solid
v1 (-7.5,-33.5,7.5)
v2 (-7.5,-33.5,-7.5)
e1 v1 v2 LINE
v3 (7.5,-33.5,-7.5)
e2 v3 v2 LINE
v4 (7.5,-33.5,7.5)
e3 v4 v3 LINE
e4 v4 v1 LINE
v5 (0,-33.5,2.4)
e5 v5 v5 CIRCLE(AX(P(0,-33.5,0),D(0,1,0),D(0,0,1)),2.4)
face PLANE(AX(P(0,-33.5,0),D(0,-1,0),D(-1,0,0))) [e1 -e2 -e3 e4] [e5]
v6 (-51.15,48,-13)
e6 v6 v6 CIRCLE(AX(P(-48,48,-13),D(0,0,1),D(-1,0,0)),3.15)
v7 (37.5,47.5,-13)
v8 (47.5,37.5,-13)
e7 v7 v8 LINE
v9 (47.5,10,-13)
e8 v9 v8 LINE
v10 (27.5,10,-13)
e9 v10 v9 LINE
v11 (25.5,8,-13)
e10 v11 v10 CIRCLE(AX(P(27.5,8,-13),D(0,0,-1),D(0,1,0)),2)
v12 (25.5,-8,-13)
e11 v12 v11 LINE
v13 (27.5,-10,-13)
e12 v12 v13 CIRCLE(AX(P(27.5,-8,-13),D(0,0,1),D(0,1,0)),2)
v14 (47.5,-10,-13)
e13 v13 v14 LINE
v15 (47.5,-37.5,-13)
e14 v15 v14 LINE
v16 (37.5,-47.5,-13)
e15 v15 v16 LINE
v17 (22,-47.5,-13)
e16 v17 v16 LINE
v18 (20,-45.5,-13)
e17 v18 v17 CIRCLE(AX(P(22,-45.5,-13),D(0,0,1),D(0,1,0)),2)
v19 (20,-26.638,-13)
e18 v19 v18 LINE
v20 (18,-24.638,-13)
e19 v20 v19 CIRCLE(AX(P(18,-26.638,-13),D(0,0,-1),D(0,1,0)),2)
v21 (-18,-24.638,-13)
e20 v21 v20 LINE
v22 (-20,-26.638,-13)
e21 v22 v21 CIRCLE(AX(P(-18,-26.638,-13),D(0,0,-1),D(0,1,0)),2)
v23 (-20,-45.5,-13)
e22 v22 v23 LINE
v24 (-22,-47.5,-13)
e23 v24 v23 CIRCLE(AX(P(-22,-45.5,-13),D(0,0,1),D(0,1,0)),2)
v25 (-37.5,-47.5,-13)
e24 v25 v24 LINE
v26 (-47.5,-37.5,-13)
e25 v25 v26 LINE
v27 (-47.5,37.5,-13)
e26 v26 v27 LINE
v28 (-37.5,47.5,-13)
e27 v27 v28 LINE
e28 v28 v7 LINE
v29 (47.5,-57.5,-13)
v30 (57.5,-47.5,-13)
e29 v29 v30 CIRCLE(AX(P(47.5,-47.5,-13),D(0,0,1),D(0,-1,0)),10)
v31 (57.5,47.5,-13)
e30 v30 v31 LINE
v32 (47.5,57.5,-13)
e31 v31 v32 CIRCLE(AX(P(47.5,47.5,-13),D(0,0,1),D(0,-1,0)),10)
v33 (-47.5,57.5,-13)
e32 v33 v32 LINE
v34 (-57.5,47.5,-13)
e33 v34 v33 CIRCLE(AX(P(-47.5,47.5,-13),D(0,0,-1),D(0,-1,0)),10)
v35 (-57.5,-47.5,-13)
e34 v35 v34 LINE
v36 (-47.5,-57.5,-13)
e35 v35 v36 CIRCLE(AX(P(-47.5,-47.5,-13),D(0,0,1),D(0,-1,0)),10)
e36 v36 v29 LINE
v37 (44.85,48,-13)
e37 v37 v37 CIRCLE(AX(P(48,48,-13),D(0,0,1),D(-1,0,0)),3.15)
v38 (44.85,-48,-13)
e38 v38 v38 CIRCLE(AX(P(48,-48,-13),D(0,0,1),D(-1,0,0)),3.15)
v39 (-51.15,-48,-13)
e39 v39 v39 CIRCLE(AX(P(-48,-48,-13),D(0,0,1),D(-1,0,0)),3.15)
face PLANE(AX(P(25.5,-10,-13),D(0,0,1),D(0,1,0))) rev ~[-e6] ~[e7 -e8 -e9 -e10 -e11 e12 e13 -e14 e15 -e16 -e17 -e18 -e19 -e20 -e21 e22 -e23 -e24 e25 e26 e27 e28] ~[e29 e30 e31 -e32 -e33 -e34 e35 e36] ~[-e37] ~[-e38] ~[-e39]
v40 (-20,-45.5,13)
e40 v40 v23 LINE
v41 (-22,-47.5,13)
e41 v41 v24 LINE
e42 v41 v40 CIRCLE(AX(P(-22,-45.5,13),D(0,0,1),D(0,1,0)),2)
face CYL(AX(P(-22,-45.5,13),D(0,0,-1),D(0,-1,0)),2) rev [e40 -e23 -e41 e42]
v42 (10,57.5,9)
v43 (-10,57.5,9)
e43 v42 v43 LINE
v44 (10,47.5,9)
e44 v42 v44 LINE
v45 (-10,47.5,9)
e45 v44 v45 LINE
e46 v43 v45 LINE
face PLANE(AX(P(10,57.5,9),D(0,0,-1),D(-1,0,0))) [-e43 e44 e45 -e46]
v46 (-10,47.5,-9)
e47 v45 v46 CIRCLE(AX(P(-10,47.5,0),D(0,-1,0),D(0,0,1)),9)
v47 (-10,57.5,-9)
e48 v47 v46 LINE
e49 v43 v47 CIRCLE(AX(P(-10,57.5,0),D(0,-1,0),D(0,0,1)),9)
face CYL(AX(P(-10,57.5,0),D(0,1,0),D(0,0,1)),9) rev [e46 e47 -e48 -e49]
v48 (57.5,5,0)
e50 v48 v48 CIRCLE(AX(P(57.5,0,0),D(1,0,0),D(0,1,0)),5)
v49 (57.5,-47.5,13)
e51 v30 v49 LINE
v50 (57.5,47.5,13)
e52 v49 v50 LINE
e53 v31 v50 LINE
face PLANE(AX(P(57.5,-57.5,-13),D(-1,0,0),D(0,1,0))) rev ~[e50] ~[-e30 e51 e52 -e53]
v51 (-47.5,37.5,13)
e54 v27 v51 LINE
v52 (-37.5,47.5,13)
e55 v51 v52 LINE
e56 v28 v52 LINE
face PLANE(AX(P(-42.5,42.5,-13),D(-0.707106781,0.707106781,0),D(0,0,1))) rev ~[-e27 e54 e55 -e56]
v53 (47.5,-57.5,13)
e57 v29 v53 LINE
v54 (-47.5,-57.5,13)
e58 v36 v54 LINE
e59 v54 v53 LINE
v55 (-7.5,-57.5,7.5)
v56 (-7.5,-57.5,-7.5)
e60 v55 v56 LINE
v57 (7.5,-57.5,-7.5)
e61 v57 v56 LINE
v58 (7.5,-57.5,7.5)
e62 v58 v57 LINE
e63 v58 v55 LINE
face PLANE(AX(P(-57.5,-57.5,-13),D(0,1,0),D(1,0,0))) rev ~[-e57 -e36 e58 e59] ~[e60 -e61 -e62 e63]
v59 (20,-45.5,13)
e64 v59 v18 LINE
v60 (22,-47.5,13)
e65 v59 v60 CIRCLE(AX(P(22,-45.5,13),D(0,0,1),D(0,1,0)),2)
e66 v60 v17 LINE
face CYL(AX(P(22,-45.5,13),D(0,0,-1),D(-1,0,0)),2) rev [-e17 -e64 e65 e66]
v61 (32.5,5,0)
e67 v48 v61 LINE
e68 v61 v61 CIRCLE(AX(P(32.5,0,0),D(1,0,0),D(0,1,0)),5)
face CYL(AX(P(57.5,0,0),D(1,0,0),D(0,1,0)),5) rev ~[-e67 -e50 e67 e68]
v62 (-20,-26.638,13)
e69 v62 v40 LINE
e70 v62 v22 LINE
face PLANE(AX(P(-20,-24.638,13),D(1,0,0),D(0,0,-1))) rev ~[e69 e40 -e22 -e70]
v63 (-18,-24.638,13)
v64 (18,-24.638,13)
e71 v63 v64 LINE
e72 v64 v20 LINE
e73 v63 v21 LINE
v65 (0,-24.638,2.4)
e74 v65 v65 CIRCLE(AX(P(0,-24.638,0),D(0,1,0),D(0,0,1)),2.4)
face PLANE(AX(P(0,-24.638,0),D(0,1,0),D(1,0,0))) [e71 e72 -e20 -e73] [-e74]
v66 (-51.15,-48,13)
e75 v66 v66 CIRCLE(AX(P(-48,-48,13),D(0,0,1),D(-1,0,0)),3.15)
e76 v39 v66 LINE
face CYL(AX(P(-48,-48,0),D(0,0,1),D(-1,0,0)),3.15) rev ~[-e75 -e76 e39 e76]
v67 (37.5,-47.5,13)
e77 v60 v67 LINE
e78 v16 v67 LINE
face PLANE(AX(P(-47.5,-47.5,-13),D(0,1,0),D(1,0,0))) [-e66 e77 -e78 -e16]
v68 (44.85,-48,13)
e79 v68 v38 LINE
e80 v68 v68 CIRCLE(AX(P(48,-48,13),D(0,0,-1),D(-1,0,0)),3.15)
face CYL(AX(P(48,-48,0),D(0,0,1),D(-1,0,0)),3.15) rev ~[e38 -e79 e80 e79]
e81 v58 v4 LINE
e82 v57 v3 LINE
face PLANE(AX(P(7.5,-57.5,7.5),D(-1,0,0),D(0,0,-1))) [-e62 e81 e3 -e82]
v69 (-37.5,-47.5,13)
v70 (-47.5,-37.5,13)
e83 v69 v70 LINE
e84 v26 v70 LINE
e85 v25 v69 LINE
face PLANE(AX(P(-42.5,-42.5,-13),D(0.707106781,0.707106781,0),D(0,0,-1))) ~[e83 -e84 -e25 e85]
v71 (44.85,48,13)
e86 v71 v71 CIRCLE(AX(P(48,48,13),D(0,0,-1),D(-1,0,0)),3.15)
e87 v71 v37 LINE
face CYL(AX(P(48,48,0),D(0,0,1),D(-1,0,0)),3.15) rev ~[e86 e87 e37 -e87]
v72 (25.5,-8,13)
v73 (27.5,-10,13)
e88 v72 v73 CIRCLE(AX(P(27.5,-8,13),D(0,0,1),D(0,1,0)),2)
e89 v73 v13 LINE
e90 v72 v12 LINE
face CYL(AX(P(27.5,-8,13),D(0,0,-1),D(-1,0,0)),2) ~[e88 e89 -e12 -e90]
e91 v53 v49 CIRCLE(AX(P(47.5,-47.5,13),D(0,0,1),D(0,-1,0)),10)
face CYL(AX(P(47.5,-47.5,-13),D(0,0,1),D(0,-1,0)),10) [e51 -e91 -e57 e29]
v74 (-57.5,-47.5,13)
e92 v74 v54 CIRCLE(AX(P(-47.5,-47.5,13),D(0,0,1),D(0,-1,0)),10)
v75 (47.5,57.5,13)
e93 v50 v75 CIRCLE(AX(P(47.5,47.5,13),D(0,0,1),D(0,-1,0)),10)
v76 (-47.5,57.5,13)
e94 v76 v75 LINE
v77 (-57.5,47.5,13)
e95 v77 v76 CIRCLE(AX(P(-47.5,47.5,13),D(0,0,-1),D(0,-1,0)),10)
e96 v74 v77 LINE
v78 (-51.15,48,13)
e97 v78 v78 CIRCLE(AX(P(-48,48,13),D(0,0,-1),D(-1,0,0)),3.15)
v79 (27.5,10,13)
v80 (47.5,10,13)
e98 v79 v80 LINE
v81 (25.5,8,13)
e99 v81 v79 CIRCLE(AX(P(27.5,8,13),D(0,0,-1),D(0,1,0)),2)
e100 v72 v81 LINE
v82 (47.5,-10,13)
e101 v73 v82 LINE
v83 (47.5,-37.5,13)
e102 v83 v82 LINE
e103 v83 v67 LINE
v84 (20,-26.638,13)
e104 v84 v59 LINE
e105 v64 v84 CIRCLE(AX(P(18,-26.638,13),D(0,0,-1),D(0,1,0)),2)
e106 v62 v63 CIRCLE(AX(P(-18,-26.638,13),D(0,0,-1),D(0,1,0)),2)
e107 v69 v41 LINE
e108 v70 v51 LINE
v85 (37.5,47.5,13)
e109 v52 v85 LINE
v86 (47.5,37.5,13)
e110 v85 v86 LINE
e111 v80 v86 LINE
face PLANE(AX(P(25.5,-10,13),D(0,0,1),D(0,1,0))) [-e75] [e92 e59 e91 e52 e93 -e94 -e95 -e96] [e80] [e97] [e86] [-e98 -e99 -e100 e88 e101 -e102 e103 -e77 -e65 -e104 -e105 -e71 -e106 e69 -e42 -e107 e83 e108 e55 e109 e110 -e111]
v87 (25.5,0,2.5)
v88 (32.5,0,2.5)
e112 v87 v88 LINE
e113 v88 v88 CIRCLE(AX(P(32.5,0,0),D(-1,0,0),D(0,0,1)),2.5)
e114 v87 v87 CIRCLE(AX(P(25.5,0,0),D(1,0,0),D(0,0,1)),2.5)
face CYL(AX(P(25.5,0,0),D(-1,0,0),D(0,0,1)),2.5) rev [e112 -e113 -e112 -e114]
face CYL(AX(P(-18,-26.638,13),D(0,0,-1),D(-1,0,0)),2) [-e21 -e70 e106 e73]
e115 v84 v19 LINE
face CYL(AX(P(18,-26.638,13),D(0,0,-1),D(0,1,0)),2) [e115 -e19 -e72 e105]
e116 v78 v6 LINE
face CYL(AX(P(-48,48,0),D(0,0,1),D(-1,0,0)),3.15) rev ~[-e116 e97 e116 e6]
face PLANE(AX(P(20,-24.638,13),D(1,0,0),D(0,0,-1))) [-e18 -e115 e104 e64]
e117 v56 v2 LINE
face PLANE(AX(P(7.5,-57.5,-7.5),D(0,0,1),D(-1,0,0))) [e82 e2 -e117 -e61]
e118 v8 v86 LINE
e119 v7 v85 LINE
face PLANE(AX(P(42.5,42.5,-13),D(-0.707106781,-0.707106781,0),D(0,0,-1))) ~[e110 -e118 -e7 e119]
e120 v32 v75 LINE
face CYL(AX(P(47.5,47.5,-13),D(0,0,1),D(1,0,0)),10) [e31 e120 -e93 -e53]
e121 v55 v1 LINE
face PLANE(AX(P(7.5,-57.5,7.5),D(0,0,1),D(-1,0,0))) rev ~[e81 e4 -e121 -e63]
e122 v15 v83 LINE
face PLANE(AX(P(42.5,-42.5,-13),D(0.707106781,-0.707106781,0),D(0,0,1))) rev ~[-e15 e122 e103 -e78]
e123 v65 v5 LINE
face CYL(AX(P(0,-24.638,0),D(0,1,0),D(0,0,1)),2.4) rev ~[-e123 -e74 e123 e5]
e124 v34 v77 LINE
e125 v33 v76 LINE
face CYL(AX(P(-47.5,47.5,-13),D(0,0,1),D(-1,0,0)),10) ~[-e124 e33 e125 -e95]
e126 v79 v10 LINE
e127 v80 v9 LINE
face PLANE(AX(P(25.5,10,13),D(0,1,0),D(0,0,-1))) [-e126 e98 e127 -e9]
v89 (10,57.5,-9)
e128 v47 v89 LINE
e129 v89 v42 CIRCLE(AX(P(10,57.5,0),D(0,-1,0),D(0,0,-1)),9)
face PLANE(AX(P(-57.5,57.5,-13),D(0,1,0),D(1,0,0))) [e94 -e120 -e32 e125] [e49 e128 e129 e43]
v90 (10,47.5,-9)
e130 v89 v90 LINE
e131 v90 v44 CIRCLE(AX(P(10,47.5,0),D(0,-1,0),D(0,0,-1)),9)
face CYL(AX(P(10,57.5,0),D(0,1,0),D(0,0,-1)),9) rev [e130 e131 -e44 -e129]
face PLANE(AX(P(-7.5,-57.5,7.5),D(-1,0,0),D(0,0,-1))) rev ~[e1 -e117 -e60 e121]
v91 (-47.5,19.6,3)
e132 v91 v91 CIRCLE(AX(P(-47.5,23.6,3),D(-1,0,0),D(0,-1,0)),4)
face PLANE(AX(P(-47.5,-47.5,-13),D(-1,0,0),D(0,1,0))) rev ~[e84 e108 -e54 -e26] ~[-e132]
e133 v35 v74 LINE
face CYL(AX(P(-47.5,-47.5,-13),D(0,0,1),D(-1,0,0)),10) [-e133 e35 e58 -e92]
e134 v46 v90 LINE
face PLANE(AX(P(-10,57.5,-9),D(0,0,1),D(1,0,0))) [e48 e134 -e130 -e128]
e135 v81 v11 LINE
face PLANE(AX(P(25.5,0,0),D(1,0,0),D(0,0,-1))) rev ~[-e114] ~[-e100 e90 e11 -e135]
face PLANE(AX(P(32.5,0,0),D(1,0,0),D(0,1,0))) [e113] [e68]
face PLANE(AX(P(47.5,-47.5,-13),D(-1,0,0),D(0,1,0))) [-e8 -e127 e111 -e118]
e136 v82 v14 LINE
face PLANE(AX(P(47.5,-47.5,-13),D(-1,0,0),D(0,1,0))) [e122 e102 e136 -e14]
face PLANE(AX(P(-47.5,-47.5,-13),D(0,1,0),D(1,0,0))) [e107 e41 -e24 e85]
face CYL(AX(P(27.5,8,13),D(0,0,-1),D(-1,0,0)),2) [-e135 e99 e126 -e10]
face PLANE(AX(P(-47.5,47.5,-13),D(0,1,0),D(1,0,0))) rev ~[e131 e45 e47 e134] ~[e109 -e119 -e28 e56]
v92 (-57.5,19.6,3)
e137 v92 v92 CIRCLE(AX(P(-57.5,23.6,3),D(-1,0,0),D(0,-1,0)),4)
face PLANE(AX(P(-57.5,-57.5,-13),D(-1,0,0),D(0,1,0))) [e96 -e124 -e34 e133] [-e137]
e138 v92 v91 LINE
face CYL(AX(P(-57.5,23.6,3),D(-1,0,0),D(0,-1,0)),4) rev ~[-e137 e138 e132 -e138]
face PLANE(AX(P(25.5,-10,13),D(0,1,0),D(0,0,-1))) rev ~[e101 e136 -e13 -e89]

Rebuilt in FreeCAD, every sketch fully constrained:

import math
import FreeCAD as App
import Part
import Sketcher

V = App.Vector


def edges_at(feature, points):
    """Names of the edges that pass closest to the given points."""
    edges = feature.Shape.Edges
    near = lambda p: min(range(len(edges)), key=lambda i: edges[i].distToShape(Part.Vertex(*p))[0])
    return sorted({f"Edge{near(p) + 1}" for p in points})


def add_polygon(sketch, points):
    """Adds a closed chain of lines whose ends are joined by coincident constraints."""
    first, n = sketch.GeometryCount, len(points)
    for a, b in zip(points, points[1:] + points[:1]):
        sketch.addGeometry(Part.LineSegment(App.Vector(*a, 0), App.Vector(*b, 0)), False)
    for i in range(n):
        sketch.addConstraint(Sketcher.Constraint("Coincident", first + i, 2, first + (i + 1) % n, 1))

doc = App.newDocument("Part")
body = doc.addObject("PartDesign::Body", "Body")

# Sketch on XY plane
sketch1 = body.newObject("Sketcher::SketchObject", "Sketch")
sketch1.AttachmentSupport = (doc.getObject("XY_Plane"), [""])
sketch1.MapMode = "FlatFace"
sketch1.AttachmentOffset = App.Placement(V(0, 0, -13), App.Rotation())
add_polygon(sketch1, [(-57.5, 57.5), (-57.5, -57.5), (57.5, -57.5), (57.5, 57.5)])  # lines 0-3
add_polygon(sketch1, [(47.5, -47.5), (-47.5, -47.5), (-47.5, 47.5), (47.5, 47.5)])  # lines 4-7
sketch1.addConstraint([
    Sketcher.Constraint("Vertical", 0),
    Sketcher.Constraint("Horizontal", 1),
    Sketcher.Constraint("Vertical", 2),
    Sketcher.Constraint("Horizontal", 3),
    Sketcher.Constraint("Horizontal", 4),
    Sketcher.Constraint("Vertical", 5),
    Sketcher.Constraint("Horizontal", 6),
    Sketcher.Constraint("Vertical", 7),
    Sketcher.Constraint("Symmetric", 0, 2, 2, 2, -1, 1),
    Sketcher.Constraint("Symmetric", 4, 2, 6, 2, -1, 1),
    Sketcher.Constraint("Equal", 3, 0),
    Sketcher.Constraint("Equal", 6, 5),
    Sketcher.Constraint("DistanceX", 1, 1, 1, 2, 115.0),
    Sketcher.Constraint("DistanceX", 4, 2, 4, 1, 95.0),
])
pad1 = body.newObject("PartDesign::Pad", "Pad")
pad1.Profile = sketch1
pad1.Length = 26

# Sketch on XZ plane
sketch2 = body.newObject("Sketcher::SketchObject", "Sketch001")
sketch2.AttachmentSupport = (doc.getObject("XZ_Plane"), [""])
sketch2.MapMode = "FlatFace"
sketch2.AttachmentOffset = App.Placement(V(0, 0, 24.638), App.Rotation())
add_polygon(sketch2, [(-20, -13), (-20, 13), (20, 13), (20, -13)])  # lines 0-3
sketch2.addConstraint([
    Sketcher.Constraint("Vertical", 0),
    Sketcher.Constraint("Horizontal", 1),
    Sketcher.Constraint("Vertical", 2),
    Sketcher.Constraint("Horizontal", 3),
    Sketcher.Constraint("Symmetric", 0, 2, 2, 2, -1, 1),
    Sketcher.Constraint("DistanceX", 1, 1, 1, 2, 40.0),
    Sketcher.Constraint("DistanceY", 0, 1, 0, 2, 26.0),
])
pad2 = body.newObject("PartDesign::Pad", "Pad001")
pad2.Profile = sketch2
pad2.Length = 27

# Sketch on XZ plane
sketch3 = body.newObject("Sketcher::SketchObject", "Sketch002")
sketch3.AttachmentSupport = (doc.getObject("XZ_Plane"), [""])
sketch3.MapMode = "FlatFace"
sketch3.AttachmentOffset = App.Placement(V(0, 0, 57.5), App.Rotation())
add_polygon(sketch3, [(7.5, -7.5), (7.5, 7.5), (-7.5, 7.5), (-7.5, -7.5)])  # lines 0-3
sketch3.addConstraint([
    Sketcher.Constraint("Vertical", 0),
    Sketcher.Constraint("Horizontal", 1),
    Sketcher.Constraint("Vertical", 2),
    Sketcher.Constraint("Horizontal", 3),
    Sketcher.Constraint("Symmetric", 0, 2, 2, 2, -1, 1),
    Sketcher.Constraint("Equal", 3, 0),
    Sketcher.Constraint("DistanceX", 1, 2, 1, 1, 15.0),
])
pocket1 = body.newObject("PartDesign::Pocket", "Pocket")
pocket1.Profile = sketch3
pocket1.Length = 24
doc.recompute()

fillet = body.newObject("PartDesign::Fillet", "Fillet")
fillet.Base = (pocket1, edges_at(pocket1, [
    (-57.5, 57.5, 0),
    (57.5, 57.5, 0),
    (57.5, -57.5, 0),
    (-57.5, -57.5, 0),
]))
fillet.Radius = 10
doc.recompute()

chamfer = body.newObject("PartDesign::Chamfer", "Chamfer")
chamfer.Base = (fillet, edges_at(fillet, [
    (-47.5, 47.5, 0),
    (-47.5, -47.5, 0),
    (47.5, -47.5, 0),
    (47.5, 47.5, 0),
]))
chamfer.Size = 10

# Sketch on XY plane
sketch4 = body.newObject("Sketcher::SketchObject", "Sketch003")
sketch4.AttachmentSupport = (doc.getObject("XY_Plane"), [""])
sketch4.MapMode = "FlatFace"
sketch4.addGeometry([
    Part.Circle(V(-48, 48, 0), V(0, 0, 1), 3.15),
    Part.Circle(V(48, 48, 0), V(0, 0, 1), 3.15),
    Part.Circle(V(48, -48, 0), V(0, 0, 1), 3.15),
    Part.Circle(V(-48, -48, 0), V(0, 0, 1), 3.15),
], False)
sketch4.addConstraint([
    Sketcher.Constraint("Equal", 0, 1),
    Sketcher.Constraint("Equal", 1, 2),
    Sketcher.Constraint("Equal", 2, 3),
    Sketcher.Constraint("Symmetric", 0, 3, 2, 3, -1, 1),
    Sketcher.Constraint("Symmetric", 1, 3, 3, 3, -1, 1),
    Sketcher.Constraint("Symmetric", 0, 3, 1, 3, -2),
    Sketcher.Constraint("Diameter", 0, 6.3),
    Sketcher.Constraint("DistanceX", 0, 3, -1, 1, 48.0),
    Sketcher.Constraint("DistanceY", -1, 1, 0, 3, 48.0),
])
pocket2 = body.newObject("PartDesign::Pocket", "Pocket001")
pocket2.Profile = sketch4
pocket2.Length = 115
pocket2.Midplane = True

# Sketch on YZ plane
sketch5 = body.newObject("Sketcher::SketchObject", "Sketch004")
sketch5.AttachmentSupport = (doc.getObject("YZ_Plane"), [""])
sketch5.MapMode = "FlatFace"
sketch5.AttachmentOffset = App.Placement(V(0, 0, -57.5), App.Rotation())
sketch5.addGeometry(Part.Circle(V(23.6, 3, 0), V(0, 0, 1), 4), False)
sketch5.addConstraint([
    Sketcher.Constraint("Diameter", 0, 8.0),
    Sketcher.Constraint("DistanceY", -1, 1, 0, 3, 3.0),
    Sketcher.Constraint("DistanceX", -1, 1, 0, 3, 23.6),
])
pocket3 = body.newObject("PartDesign::Pocket", "Pocket002")
pocket3.Profile = sketch5
pocket3.Length = 30
pocket3.Reversed = True
doc.recompute()

fillet2 = body.newObject("PartDesign::Fillet", "Fillet001")
fillet2.Base = (pocket3, edges_at(pocket3, [
    (20, -47.5, 0),
    (-20, -47.5, 0),
    (-20, -24.638, 0),
    (20, -24.638, 0),
]))
fillet2.Radius = 2

# Sketch on YZ plane
sketch6 = body.newObject("Sketcher::SketchObject", "Sketch005")
sketch6.AttachmentSupport = (doc.getObject("YZ_Plane"), [""])
sketch6.MapMode = "FlatFace"
sketch6.AttachmentOffset = App.Placement(V(0, 0, 25.5), App.Rotation())
add_polygon(sketch6, [(10, 13), (-10, 13), (-10, -13), (10, -13)])  # lines 0-3
sketch6.addConstraint([
    Sketcher.Constraint("Horizontal", 0),
    Sketcher.Constraint("Vertical", 1),
    Sketcher.Constraint("Horizontal", 2),
    Sketcher.Constraint("Vertical", 3),
    Sketcher.Constraint("Symmetric", 0, 2, 2, 2, -1, 1),
    Sketcher.Constraint("DistanceX", 0, 2, 0, 1, 20.0),
    Sketcher.Constraint("DistanceY", 1, 2, 1, 1, 26.0),
])
pad3 = body.newObject("PartDesign::Pad", "Pad002")
pad3.Profile = sketch6
pad3.Length = 25
doc.recompute()

fillet3 = body.newObject("PartDesign::Fillet", "Fillet002")
fillet3.Base = (pad3, edges_at(pad3, [(25.5, -10, 0), (25.5, 10, 0)]))
fillet3.Radius = 2

# Sketch on YZ plane
sketch7 = body.newObject("Sketcher::SketchObject", "Sketch006")
sketch7.AttachmentSupport = (doc.getObject("YZ_Plane"), [""])
sketch7.MapMode = "FlatFace"
sketch7.AttachmentOffset = App.Placement(V(0, 0, 57.5), App.Rotation())
sketch7.addGeometry(Part.Circle(V(0, 0, 0), V(0, 0, 1), 5), False)
sketch7.addConstraint([
    Sketcher.Constraint("Coincident", 0, 3, -1, 1),
    Sketcher.Constraint("Diameter", 0, 10.0),
])
pocket4 = body.newObject("PartDesign::Pocket", "Pocket003")
pocket4.Profile = sketch7
pocket4.Length = 25

# Sketch on YZ plane
sketch8 = body.newObject("Sketcher::SketchObject", "Sketch007")
sketch8.AttachmentSupport = (doc.getObject("YZ_Plane"), [""])
sketch8.MapMode = "FlatFace"
sketch8.AttachmentOffset = App.Placement(V(0, 0, 25.5), App.Rotation())
sketch8.addGeometry(Part.Circle(V(0, 0, 0), V(0, 0, 1), 2.5), False)
sketch8.addConstraint([
    Sketcher.Constraint("Coincident", 0, 3, -1, 1),
    Sketcher.Constraint("Diameter", 0, 5.0),
])
pocket5 = body.newObject("PartDesign::Pocket", "Pocket004")
pocket5.Profile = sketch8
pocket5.Length = 15
pocket5.Reversed = True

# Sketch on XZ plane
sketch9 = body.newObject("Sketcher::SketchObject", "Sketch008")
sketch9.AttachmentSupport = (doc.getObject("XZ_Plane"), [""])
sketch9.MapMode = "FlatFace"
sketch9.AttachmentOffset = App.Placement(V(0, 0, -57.5), App.Rotation())
sketch9.addGeometry([
    Part.LineSegment(V(10, -9, 0), V(-10, -9, 0)),
    Part.ArcOfCircle(Part.Circle(V(-10, 0, 0), V(0, 0, 1), 9), math.radians(90), math.radians(270)),
    Part.LineSegment(V(-10, 9, 0), V(10, 9, 0)),
    Part.ArcOfCircle(Part.Circle(V(10, 0, 0), V(0, 0, 1), 9), math.radians(-90), math.radians(90)),
], False)
sketch9.addConstraint([
    Sketcher.Constraint("Tangent", 0, 2, 1, 2),
    Sketcher.Constraint("Tangent", 1, 1, 2, 1),
    Sketcher.Constraint("Tangent", 2, 2, 3, 2),
    Sketcher.Constraint("Tangent", 3, 1, 0, 1),
    Sketcher.Constraint("Horizontal", 0),
    Sketcher.Constraint("Horizontal", 2),
    Sketcher.Constraint("Symmetric", 1, 3, 3, 3, -1, 1),
    Sketcher.Constraint("Radius", 1, 9.0),
    Sketcher.Constraint("DistanceX", 0, 2, 0, 1, 20.0),
])
pocket6 = body.newObject("PartDesign::Pocket", "Pocket005")
pocket6.Profile = sketch9
pocket6.Length = 10
pocket6.Reversed = True

# Sketch on XZ plane
sketch10 = body.newObject("Sketcher::SketchObject", "Sketch009")
sketch10.AttachmentSupport = (doc.getObject("XZ_Plane"), [""])
sketch10.MapMode = "FlatFace"
sketch10.AttachmentOffset = App.Placement(V(0, 0, 24.638), App.Rotation())
sketch10.addGeometry(Part.Circle(V(0, 0, 0), V(0, 0, 1), 2.4), False)
sketch10.addConstraint([
    Sketcher.Constraint("Coincident", 0, 3, -1, 1),
    Sketcher.Constraint("Diameter", 0, 4.8),
])
pocket7 = body.newObject("PartDesign::Pocket", "Pocket006")
pocket7.Profile = sketch10
pocket7.Length = 30
pocket7.Reversed = True

doc.recompute()
